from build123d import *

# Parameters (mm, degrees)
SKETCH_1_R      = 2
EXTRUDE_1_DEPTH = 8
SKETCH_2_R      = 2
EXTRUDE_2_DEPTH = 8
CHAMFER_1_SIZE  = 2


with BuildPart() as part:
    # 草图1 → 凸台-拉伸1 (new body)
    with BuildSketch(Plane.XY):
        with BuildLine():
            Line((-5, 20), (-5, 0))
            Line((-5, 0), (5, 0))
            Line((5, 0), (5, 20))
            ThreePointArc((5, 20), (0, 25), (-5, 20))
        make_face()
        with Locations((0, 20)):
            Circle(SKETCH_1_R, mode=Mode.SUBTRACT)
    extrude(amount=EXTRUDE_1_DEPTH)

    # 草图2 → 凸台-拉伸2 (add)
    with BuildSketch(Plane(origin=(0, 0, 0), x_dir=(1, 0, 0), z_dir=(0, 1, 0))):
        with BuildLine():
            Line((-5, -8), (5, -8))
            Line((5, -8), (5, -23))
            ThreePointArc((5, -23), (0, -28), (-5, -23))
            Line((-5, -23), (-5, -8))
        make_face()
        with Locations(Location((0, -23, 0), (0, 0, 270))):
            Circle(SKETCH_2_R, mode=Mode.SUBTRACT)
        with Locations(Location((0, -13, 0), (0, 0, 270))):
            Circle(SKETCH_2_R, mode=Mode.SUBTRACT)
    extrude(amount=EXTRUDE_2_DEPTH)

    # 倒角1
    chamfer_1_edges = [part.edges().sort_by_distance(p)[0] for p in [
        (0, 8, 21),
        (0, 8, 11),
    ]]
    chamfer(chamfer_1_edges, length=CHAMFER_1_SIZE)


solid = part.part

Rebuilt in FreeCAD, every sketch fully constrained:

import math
import FreeCAD as App
import Part
import Sketcher

V = App.Vector


def edges_at(feature, points):
    """Names of the edges that pass closest to the given points."""
    edges = feature.Shape.Edges
    near = lambda p: min(range(len(edges)), key=lambda i: edges[i].distToShape(Part.Vertex(*p))[0])
    return sorted({f"Edge{near(p) + 1}" for p in points})

doc = App.newDocument("Part")
params = doc.addObject("Spreadsheet::Sheet", "Params")
for row, (alias, value) in enumerate([
    ("sketch1_diameter", "4 mm"),
    ("sketch1_radius", "5 mm"),
    ("sketch1_height", "20 mm"),
    ("pad1_length", "8 mm"),
    ("sketch2_diameter", "4 mm"),
    ("sketch2_radius", "5 mm"),
    ("sketch2_height", "15 mm"),
    ("pad2_length", "8 mm"),
    ("chamfer_size", "2 mm"),
], start=1):
    params.set(f"A{row}", alias)
    params.set(f"B{row}", "=" + value)
    params.setAlias(f"B{row}", alias)

body = doc.addObject("PartDesign::Body", "Body")

sketch1 = body.newObject("Sketcher::SketchObject", "Sketch")
sketch1.AttachmentSupport = (doc.getObject("XY_Plane"), [""])
sketch1.MapMode = "FlatFace"
sketch1.addGeometry([
    Part.LineSegment(V(-5, 20, 0), V(-5, 0, 0)),
    Part.LineSegment(V(-5, 0, 0), V(5, 0, 0)),
    Part.LineSegment(V(5, 0, 0), V(5, 20, 0)),
    Part.ArcOfCircle(Part.Circle(V(0, 20, 0), V(0, 0, 1), 5), math.radians(0), math.radians(180)),
    Part.Circle(V(0, 20, 0), V(0, 0, 1), 2),
], False)
sketch1.addConstraint([
    Sketcher.Constraint("Coincident", 0, 2, 1, 1),
    Sketcher.Constraint("Coincident", 1, 2, 2, 1),
    Sketcher.Constraint("Tangent", 2, 2, 3, 1),
    Sketcher.Constraint("Tangent", 3, 2, 0, 1),
    Sketcher.Constraint("Vertical", 0),
    Sketcher.Constraint("Horizontal", 1),
    Sketcher.Constraint("Vertical", 2),
    Sketcher.Constraint("Coincident", 4, 3, 3, 3),
    Sketcher.Constraint("Symmetric", 0, 2, 1, 2, -1, 1),
    Sketcher.Constraint("Diameter", 4, 4.0),
    Sketcher.Constraint("Radius", 3, 5.0),
    Sketcher.Constraint("DistanceY", 0, 2, 0, 1, 20.0),
])
sketch1.setExpression("Constraints[9]", "Params.sketch1_diameter")
sketch1.setExpression("Constraints[10]", "Params.sketch1_radius")
sketch1.setExpression("Constraints[11]", "Params.sketch1_height")
pad1 = body.newObject("PartDesign::Pad", "Pad")
pad1.Profile = sketch1
pad1.setExpression("Length", "Params.pad1_length")

sketch2 = body.newObject("Sketcher::SketchObject", "Sketch001")
sketch2.AttachmentSupport = (doc.getObject("XZ_Plane"), [""])
sketch2.MapMode = "FlatFace"
sketch2.addGeometry([
    Part.LineSegment(V(5, 8, 0), V(-5, 8, 0)),
    Part.LineSegment(V(-5, 8, 0), V(-5, 23, 0)),
    Part.ArcOfCircle(Part.Circle(V(0, 23, 0), V(0, 0, 1), 5), math.radians(0), math.radians(180)),
    Part.LineSegment(V(5, 23, 0), V(5, 8, 0)),
    Part.Circle(V(0, 23, 0), V(0, 0, 1), 2),
    Part.Circle(V(0, 13, 0), V(0, 0, 1), 2),
], False)
sketch2.addConstraint([
    Sketcher.Constraint("Coincident", 0, 2, 1, 1),
    Sketcher.Constraint("Tangent", 1, 2, 2, 2),
    Sketcher.Constraint("Tangent", 2, 1, 3, 1),
    Sketcher.Constraint("Coincident", 3, 2, 0, 1),
    Sketcher.Constraint("Horizontal", 0),
    Sketcher.Constraint("Vertical", 1),
    Sketcher.Constraint("Vertical", 3),
    Sketcher.Constraint("Coincident", 4, 3, 2, 3),
    Sketcher.Constraint("Equal", 4, 5),
    Sketcher.Constraint("PointOnObject", 2, 3, -2),
    Sketcher.Constraint("PointOnObject", 5, 3, -2),
    Sketcher.Constraint("Diameter", 4, 4.0),
    Sketcher.Constraint("Radius", 2, 5.0),
    Sketcher.Constraint("DistanceY", 1, 1, 1, 2, 15.0),
    Sketcher.Constraint("DistanceY", -1, 1, 2, 3, 23.0),
    Sketcher.Constraint("DistanceY", -1, 1, 5, 3, 13.0),
])
sketch2.setExpression("Constraints[11]", "Params.sketch2_diameter")
sketch2.setExpression("Constraints[12]", "Params.sketch2_radius")
sketch2.setExpression("Constraints[13]", "Params.sketch2_height")
pad2 = body.newObject("PartDesign::Pad", "Pad001")
pad2.Profile = sketch2
pad2.setExpression("Length", "Params.pad2_length")
pad2.Reversed = True
doc.recompute()

chamfer = body.newObject("PartDesign::Chamfer", "Chamfer")
chamfer.Base = (pad2, edges_at(pad2, [(0, 8, 21), (0, 8, 11)]))
chamfer.setExpression("Size", "Params.chamfer_size")

doc.recompute()
